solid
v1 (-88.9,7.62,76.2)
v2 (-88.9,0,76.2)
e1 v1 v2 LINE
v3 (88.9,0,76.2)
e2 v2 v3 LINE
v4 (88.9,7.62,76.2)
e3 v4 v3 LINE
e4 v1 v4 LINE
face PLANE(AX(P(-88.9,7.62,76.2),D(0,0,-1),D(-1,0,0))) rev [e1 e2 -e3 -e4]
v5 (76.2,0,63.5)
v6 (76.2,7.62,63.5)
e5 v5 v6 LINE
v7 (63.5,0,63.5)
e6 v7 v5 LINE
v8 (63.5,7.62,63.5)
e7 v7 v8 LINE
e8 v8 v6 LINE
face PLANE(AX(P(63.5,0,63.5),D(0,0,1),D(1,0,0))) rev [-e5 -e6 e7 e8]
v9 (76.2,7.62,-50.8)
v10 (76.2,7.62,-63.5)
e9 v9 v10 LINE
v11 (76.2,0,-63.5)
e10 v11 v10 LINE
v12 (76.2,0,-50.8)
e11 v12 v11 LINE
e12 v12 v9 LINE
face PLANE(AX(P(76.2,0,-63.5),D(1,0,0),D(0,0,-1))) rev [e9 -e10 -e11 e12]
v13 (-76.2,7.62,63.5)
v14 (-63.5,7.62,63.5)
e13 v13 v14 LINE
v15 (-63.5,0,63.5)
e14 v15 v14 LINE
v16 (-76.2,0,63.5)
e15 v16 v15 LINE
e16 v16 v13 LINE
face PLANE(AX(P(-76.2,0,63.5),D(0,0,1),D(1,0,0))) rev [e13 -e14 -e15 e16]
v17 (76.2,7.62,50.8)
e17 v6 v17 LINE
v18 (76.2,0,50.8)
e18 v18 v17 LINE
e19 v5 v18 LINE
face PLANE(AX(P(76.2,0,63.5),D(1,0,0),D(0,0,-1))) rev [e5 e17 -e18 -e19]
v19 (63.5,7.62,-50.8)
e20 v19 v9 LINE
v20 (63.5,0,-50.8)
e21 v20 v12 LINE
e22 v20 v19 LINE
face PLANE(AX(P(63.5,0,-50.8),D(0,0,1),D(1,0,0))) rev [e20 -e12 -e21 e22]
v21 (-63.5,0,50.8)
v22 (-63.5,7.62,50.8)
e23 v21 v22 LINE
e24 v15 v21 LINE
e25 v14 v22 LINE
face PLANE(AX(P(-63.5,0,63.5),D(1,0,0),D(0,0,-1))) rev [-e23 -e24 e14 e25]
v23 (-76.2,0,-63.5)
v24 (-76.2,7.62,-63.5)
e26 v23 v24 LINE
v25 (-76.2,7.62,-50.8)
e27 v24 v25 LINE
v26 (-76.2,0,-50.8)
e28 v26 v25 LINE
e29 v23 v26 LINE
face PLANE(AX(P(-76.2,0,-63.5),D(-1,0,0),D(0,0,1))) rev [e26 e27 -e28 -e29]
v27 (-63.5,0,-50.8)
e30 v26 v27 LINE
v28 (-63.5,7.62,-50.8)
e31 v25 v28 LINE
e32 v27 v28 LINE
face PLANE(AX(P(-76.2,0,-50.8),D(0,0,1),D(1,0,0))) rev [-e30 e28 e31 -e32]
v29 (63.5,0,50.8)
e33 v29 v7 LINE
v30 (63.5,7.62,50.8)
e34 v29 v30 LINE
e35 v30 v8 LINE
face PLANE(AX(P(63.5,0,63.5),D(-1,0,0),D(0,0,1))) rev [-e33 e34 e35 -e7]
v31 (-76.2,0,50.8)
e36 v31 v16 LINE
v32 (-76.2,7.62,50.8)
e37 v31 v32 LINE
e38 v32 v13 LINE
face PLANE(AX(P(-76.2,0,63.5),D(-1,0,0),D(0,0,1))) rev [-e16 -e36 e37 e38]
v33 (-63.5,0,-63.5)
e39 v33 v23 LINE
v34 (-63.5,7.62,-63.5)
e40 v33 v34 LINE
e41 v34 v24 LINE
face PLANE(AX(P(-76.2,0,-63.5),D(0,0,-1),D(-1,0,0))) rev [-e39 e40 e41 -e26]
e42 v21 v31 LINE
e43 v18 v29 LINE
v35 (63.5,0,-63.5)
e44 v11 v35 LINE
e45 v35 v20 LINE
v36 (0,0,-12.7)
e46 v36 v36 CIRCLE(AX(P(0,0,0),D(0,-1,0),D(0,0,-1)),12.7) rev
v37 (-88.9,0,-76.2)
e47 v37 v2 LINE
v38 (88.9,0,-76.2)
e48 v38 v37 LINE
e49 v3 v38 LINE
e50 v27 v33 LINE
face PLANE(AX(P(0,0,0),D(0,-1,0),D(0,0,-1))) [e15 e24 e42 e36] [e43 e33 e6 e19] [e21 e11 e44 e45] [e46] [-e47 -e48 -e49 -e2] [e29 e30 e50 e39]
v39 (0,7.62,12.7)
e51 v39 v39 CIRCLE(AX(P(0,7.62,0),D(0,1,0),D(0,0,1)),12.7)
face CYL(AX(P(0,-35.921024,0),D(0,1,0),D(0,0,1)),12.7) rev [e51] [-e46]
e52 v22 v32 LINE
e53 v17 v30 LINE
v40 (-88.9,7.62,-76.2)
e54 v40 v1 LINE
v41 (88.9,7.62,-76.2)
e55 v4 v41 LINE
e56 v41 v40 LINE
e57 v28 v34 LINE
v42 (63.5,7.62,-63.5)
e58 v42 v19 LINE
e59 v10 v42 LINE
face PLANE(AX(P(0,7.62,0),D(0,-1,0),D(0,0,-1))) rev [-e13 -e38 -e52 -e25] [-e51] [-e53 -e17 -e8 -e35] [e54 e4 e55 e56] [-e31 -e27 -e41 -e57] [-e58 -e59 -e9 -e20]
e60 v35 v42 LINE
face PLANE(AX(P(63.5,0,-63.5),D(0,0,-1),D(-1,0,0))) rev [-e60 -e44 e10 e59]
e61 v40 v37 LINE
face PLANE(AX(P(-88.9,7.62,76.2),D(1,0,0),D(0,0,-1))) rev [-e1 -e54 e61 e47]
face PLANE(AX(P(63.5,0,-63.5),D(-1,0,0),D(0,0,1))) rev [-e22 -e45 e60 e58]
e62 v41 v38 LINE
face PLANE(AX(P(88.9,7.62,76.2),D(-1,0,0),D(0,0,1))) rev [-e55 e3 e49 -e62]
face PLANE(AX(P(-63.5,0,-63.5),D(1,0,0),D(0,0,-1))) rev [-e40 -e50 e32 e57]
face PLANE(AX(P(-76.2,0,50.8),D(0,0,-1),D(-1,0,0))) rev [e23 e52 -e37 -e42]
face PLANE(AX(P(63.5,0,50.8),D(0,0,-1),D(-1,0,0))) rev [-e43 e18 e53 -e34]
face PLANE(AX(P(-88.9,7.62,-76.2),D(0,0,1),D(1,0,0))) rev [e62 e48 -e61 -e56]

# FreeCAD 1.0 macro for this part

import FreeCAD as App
import Part
import Sketcher

V = App.Vector
Q = App.Units.Quantity

doc = App.newDocument("Part")
body = doc.addObject("PartDesign::Body", "Body")

# Sketch on XZ plane
sketch1 = body.newObject("Sketcher::SketchObject", "Sketch")
sketch1.AttachmentSupport = (doc.getObject("XZ_Plane"), [""])
sketch1.MapMode = "FlatFace"
sketch1.addGeometry(Part.LineSegment(V(-88.9, -76.2, 0), V(-88.9, 76.2, 0)), False)
sketch1.addGeometry(Part.LineSegment(V(-88.9, 76.2, 0), V(88.9, 76.2, 0)), False)
sketch1.addGeometry(Part.LineSegment(V(88.9, 76.2, 0), V(88.9, -76.2, 0)), False)
sketch1.addGeometry(Part.LineSegment(V(88.9, -76.2, 0), V(-88.9, -76.2, 0)), False)
sketch1.addConstraint(Sketcher.Constraint("Coincident", 0, 2, 1, 1))
sketch1.addConstraint(Sketcher.Constraint("Coincident", 1, 2, 2, 1))
sketch1.addConstraint(Sketcher.Constraint("Coincident", 2, 2, 3, 1))
sketch1.addConstraint(Sketcher.Constraint("Coincident", 3, 2, 0, 1))
sketch1.addConstraint(Sketcher.Constraint("Vertical", 0))
sketch1.addConstraint(Sketcher.Constraint("Horizontal", 1))
sketch1.addConstraint(Sketcher.Constraint("Vertical", 2))
sketch1.addConstraint(Sketcher.Constraint("Horizontal", 3))
sketch1.addConstraint(Sketcher.Constraint("Symmetric", 0, 2, 2, 2, -1, 1))
sketch1.addConstraint(Sketcher.Constraint("DistanceX", 1, 1, 1, 2, Q("7 in")))
sketch1.addConstraint(Sketcher.Constraint("DistanceY", 0, 1, 0, 2, Q("6 in")))
pad1 = body.newObject("PartDesign::Pad", "Pad")
pad1.Profile = sketch1
pad1.Length = Q("0.3 in")
pad1.Reversed = True

# Sketch on XZ plane
sketch2 = body.newObject("Sketcher::SketchObject", "Sketch001")
sketch2.AttachmentSupport = (doc.getObject("XZ_Plane"), [""])
sketch2.MapMode = "FlatFace"
sketch2.AttachmentOffset = App.Placement(V(0, 0, -0.3 * 25.4), App.Rotation())
sketch2.addGeometry(Part.Circle(V(0, 0, 0), V(0, 0, 1), 12.7), False)
sketch2.addConstraint(Sketcher.Constraint("Coincident", 0, 3, -1, 1))
sketch2.addConstraint(Sketcher.Constraint("Diameter", 0, Q("1 in")))
pocket1 = body.newObject("PartDesign::Pocket", "Pocket")
pocket1.Profile = sketch2
pocket1.Length = Q("0.3 in")
pocket1.Reversed = True

# Sketch on XZ plane
sketch3 = body.newObject("Sketcher::SketchObject", "Sketch002")
sketch3.AttachmentSupport = (doc.getObject("XZ_Plane"), [""])
sketch3.MapMode = "FlatFace"
sketch3.AttachmentOffset = App.Placement(V(0, 0, -0.3 * 25.4), App.Rotation())
sketch3.addGeometry(Part.LineSegment(V(-76.2, 50.8, 0), V(-76.2, 63.5, 0)), False)
sketch3.addGeometry(Part.LineSegment(V(-76.2, 63.5, 0), V(-63.5, 63.5, 0)), False)
sketch3.addGeometry(Part.LineSegment(V(-63.5, 63.5, 0), V(-63.5, 50.8, 0)), False)
sketch3.addGeometry(Part.LineSegment(V(-63.5, 50.8, 0), V(-76.2, 50.8, 0)), False)
sketch3.addGeometry(Part.LineSegment(V(63.5, 50.8, 0), V(63.5, 63.5, 0)), False)
sketch3.addGeometry(Part.LineSegment(V(63.5, 63.5, 0), V(76.2, 63.5, 0)), False)
sketch3.addGeometry(Part.LineSegment(V(76.2, 63.5, 0), V(76.2, 50.8, 0)), False)
sketch3.addGeometry(Part.LineSegment(V(76.2, 50.8, 0), V(63.5, 50.8, 0)), False)
sketch3.addGeometry(Part.LineSegment(V(-76.2, -63.5, 0), V(-76.2, -50.8, 0)), False)
sketch3.addGeometry(Part.LineSegment(V(-76.2, -50.8, 0), V(-63.5, -50.8, 0)), False)
sketch3.addGeometry(Part.LineSegment(V(-63.5, -50.8, 0), V(-63.5, -63.5, 0)), False)
sketch3.addGeometry(Part.LineSegment(V(-63.5, -63.5, 0), V(-76.2, -63.5, 0)), False)
sketch3.addGeometry(Part.LineSegment(V(63.5, -63.5, 0), V(63.5, -50.8, 0)), False)
sketch3.addGeometry(Part.LineSegment(V(63.5, -50.8, 0), V(76.2, -50.8, 0)), False)
sketch3.addGeometry(Part.LineSegment(V(76.2, -50.8, 0), V(76.2, -63.5, 0)), False)
sketch3.addGeometry(Part.LineSegment(V(76.2, -63.5, 0), V(63.5, -63.5, 0)), False)
sketch3.addConstraint(Sketcher.Constraint("Coincident", 0, 2, 1, 1))
sketch3.addConstraint(Sketcher.Constraint("Coincident", 1, 2, 2, 1))
sketch3.addConstraint(Sketcher.Constraint("Coincident", 2, 2, 3, 1))
sketch3.addConstraint(Sketcher.Constraint("Coincident", 3, 2, 0, 1))
sketch3.addConstraint(Sketcher.Constraint("Coincident", 4, 2, 5, 1))
sketch3.addConstraint(Sketcher.Constraint("Coincident", 5, 2, 6, 1))
sketch3.addConstraint(Sketcher.Constraint("Coincident", 6, 2, 7, 1))
sketch3.addConstraint(Sketcher.Constraint("Coincident", 7, 2, 4, 1))
sketch3.addConstraint(Sketcher.Constraint("Coincident", 8, 2, 9, 1))
sketch3.addConstraint(Sketcher.Constraint("Coincident", 9, 2, 10, 1))
sketch3.addConstraint(Sketcher.Constraint("Coincident", 10, 2, 11, 1))
sketch3.addConstraint(Sketcher.Constraint("Coincident", 11, 2, 8, 1))
sketch3.addConstraint(Sketcher.Constraint("Coincident", 12, 2, 13, 1))
sketch3.addConstraint(Sketcher.Constraint("Coincident", 13, 2, 14, 1))
sketch3.addConstraint(Sketcher.Constraint("Coincident", 14, 2, 15, 1))
sketch3.addConstraint(Sketcher.Constraint("Coincident", 15, 2, 12, 1))
sketch3.addConstraint(Sketcher.Constraint("Vertical", 0))
sketch3.addConstraint(Sketcher.Constraint("Horizontal", 1))
sketch3.addConstraint(Sketcher.Constraint("Vertical", 2))
sketch3.addConstraint(Sketcher.Constraint("Horizontal", 3))
sketch3.addConstraint(Sketcher.Constraint("Vertical", 4))
sketch3.addConstraint(Sketcher.Constraint("Horizontal", 5))
sketch3.addConstraint(Sketcher.Constraint("Vertical", 6))
sketch3.addConstraint(Sketcher.Constraint("Horizontal", 7))
sketch3.addConstraint(Sketcher.Constraint("Vertical", 8))
sketch3.addConstraint(Sketcher.Constraint("Horizontal", 9))
sketch3.addConstraint(Sketcher.Constraint("Vertical", 10))
sketch3.addConstraint(Sketcher.Constraint("Horizontal", 11))
sketch3.addConstraint(Sketcher.Constraint("Vertical", 12))
sketch3.addConstraint(Sketcher.Constraint("Horizontal", 13))
sketch3.addConstraint(Sketcher.Constraint("Vertical", 14))
sketch3.addConstraint(Sketcher.Constraint("Horizontal", 15))
sketch3.addConstraint(Sketcher.Constraint("Symmetric", 6, 2, 8, 2, -1, 1))
sketch3.addConstraint(Sketcher.Constraint("Symmetric", 4, 2, 10, 2, -1, 1))
sketch3.addConstraint(Sketcher.Constraint("Symmetric", 2, 2, 12, 2, -1, 1))
sketch3.addConstraint(Sketcher.Constraint("Symmetric", 0, 2, 14, 2, -1, 1))
sketch3.addConstraint(Sketcher.Constraint("Symmetric", 1, 2, 4, 2, -2))
sketch3.addConstraint(Sketcher.Constraint("Symmetric", 3, 2, 6, 2, -2))
sketch3.addConstraint(Sketcher.Constraint("Equal", 15, 0))
sketch3.addConstraint(Sketcher.Constraint("DistanceX", 1, 1, 1, 2, Q("0.5 in")))
sketch3.addConstraint(Sketcher.Constraint("DistanceX", 0, 2, -1, 1, Q("3 in")))
sketch3.addConstraint(Sketcher.Constraint("DistanceY", -1, 1, 2, 2, Q("2 in")))
pocket2 = body.newObject("PartDesign::Pocket", "Pocket001")
pocket2.Profile = sketch3
pocket2.Type = "ThroughAll"
pocket2.Reversed = True

doc.recompute()
